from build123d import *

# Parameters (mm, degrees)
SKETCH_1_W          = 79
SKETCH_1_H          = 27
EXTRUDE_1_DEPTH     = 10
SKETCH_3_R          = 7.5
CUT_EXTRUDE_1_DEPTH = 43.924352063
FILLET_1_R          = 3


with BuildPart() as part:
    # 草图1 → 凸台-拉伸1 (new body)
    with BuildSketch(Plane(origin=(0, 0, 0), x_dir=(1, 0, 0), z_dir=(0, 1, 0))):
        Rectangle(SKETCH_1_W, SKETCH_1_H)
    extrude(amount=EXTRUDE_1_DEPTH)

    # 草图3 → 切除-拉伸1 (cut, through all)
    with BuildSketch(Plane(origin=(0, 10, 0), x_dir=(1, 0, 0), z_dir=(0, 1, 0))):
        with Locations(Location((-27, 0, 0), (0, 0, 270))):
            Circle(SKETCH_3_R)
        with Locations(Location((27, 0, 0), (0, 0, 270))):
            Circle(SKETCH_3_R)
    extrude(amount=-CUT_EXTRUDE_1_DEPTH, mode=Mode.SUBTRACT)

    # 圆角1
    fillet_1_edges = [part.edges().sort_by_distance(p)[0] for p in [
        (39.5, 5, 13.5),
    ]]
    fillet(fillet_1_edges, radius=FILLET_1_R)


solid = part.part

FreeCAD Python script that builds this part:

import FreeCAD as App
import Part
import Sketcher

V = App.Vector


def edges_at(feature, points):
    """Names of the edges that pass closest to the given points."""
    edges = feature.Shape.Edges
    near = lambda p: min(range(len(edges)), key=lambda i: edges[i].distToShape(Part.Vertex(*p))[0])
    return sorted({f"Edge{near(p) + 1}" for p in points})

doc = App.newDocument("Part")
body = doc.addObject("PartDesign::Body", "Body")

sketch1 = body.newObject("Sketcher::SketchObject", "Sketch")
sketch1.AttachmentSupport = (doc.getObject("XZ_Plane"), [""])
sketch1.MapMode = "FlatFace"
sketch1.addGeometry([
    Part.LineSegment(V(-40, -14, 0), V(-40, 14, 0)),
    Part.LineSegment(V(-40, 14, 0), V(40, 14, 0)),
    Part.LineSegment(V(40, 14, 0), V(40, -14, 0)),
    Part.LineSegment(V(40, -14, 0), V(-40, -14, 0)),
], False)
sketch1.addConstraint([
    Sketcher.Constraint("Coincident", 0, 2, 1, 1),
    Sketcher.Constraint("Coincident", 1, 2, 2, 1),
    Sketcher.Constraint("Coincident", 2, 2, 3, 1),
    Sketcher.Constraint("Coincident", 3, 2, 0, 1),
    Sketcher.Constraint("Vertical", 0),
    Sketcher.Constraint("Horizontal", 1),
    Sketcher.Constraint("Vertical", 2),
    Sketcher.Constraint("Horizontal", 3),
    Sketcher.Constraint("Symmetric", 0, 2, 2, 2, -1, 1),
    Sketcher.Constraint("DistanceX", 1, 1, 1, 2, 79.0),
    Sketcher.Constraint("DistanceY", 0, 1, 0, 2, 27.0),
])
pad1 = body.newObject("PartDesign::Pad", "Pad")
pad1.Profile = sketch1
pad1.Length = 10
pad1.Reversed = True

sketch2 = body.newObject("Sketcher::SketchObject", "Sketch001")
sketch2.AttachmentSupport = (doc.getObject("XZ_Plane"), [""])
sketch2.MapMode = "FlatFace"
sketch2.AttachmentOffset = App.Placement(V(0, 0, -10), App.Rotation())
sketch2.addGeometry([
    Part.Circle(V(-27, 0, 0), V(0, 0, 1), 8),
    Part.Circle(V(27, 0, 0), V(0, 0, 1), 8),
], False)
sketch2.addConstraint([
    Sketcher.Constraint("Equal", 0, 1),
    Sketcher.Constraint("Symmetric", 0, 3, 1, 3, -1, 1),
    Sketcher.Constraint("PointOnObject", 0, 3, -1),
    Sketcher.Constraint("Diameter", 0, 15.0),
    Sketcher.Constraint("DistanceX", 0, 3, -1, 1, 27.0),
])
pocket1 = body.newObject("PartDesign::Pocket", "Pocket")
pocket1.Profile = sketch2
pocket1.Type = "ThroughAll"
pocket1.Reversed = True
doc.recompute()

fillet = body.newObject("PartDesign::Fillet", "Fillet")
fillet.Base = (pocket1, edges_at(pocket1, [(39.5, 5, 13.5)]))
fillet.Radius = 3

doc.recompute()
